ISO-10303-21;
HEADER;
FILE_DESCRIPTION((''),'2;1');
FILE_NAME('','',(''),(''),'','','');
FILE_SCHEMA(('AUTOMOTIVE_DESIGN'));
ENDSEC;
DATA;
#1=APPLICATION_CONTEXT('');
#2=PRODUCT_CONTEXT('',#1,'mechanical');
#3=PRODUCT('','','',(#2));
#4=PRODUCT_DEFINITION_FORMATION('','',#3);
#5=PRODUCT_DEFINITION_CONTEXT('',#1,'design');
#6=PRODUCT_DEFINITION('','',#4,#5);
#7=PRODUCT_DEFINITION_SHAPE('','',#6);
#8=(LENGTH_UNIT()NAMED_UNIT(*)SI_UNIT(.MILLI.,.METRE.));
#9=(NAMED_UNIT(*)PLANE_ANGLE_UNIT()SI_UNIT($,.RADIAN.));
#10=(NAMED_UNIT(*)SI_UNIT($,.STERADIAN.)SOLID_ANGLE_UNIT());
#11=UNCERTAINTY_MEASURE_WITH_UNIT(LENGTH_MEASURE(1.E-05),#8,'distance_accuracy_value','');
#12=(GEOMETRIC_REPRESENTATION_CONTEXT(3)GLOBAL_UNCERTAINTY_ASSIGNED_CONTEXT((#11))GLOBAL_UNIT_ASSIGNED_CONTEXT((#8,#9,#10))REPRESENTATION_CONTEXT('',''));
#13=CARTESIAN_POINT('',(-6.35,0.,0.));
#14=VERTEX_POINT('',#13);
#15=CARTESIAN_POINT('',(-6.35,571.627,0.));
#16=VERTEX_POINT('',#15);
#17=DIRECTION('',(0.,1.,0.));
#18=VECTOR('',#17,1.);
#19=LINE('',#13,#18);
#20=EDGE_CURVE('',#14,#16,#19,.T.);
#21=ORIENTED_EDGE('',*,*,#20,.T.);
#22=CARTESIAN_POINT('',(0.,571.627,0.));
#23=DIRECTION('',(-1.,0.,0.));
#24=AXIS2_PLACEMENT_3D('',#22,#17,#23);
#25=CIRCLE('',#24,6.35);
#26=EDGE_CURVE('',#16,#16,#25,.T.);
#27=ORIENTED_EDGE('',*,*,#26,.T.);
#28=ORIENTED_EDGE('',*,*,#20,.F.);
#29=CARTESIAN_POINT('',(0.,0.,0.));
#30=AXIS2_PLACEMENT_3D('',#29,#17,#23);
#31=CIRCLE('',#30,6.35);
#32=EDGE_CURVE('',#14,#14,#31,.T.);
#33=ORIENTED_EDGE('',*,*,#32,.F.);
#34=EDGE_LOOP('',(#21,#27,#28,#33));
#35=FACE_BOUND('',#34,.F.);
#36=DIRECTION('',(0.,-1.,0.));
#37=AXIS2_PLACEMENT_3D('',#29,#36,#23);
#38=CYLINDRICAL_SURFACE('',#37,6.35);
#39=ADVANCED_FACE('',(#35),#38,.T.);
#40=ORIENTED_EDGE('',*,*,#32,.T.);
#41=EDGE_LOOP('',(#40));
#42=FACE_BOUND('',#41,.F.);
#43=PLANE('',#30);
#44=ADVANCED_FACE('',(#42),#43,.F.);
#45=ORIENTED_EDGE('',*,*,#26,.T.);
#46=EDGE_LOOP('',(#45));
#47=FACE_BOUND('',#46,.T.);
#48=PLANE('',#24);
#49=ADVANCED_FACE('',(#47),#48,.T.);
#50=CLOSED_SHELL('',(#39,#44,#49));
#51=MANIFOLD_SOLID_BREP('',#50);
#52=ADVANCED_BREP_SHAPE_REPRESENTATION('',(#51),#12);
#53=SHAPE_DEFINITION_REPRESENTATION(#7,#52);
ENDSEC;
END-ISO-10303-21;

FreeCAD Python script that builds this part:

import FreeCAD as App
import Part
import Sketcher
from FreeCAD import Vector
Q = App.Units.Quantity

doc = App.newDocument("Part")
body = doc.addObject("PartDesign::Body", "Body")

# Sketch on XZ plane
sketch1 = body.newObject("Sketcher::SketchObject", "Sketch")
sketch1.AttachmentSupport = (doc.getObject("XZ_Plane"), [""])
sketch1.MapMode = "FlatFace"
sketch1.addGeometry(Part.Circle(Vector(0, 0, 0), Vector(0, 0, 1), 6), False)
sketch1.addConstraint(Sketcher.Constraint("Coincident", 0, 3, -1, 1))
sketch1.addConstraint(Sketcher.Constraint("Diameter", 0, Q("0.5 in")))
pad1 = body.newObject("PartDesign::Pad", "Pad")
pad1.Profile = sketch1
pad1.Length = Q("22.505 in")
pad1.Reversed = True

doc.recompute()
